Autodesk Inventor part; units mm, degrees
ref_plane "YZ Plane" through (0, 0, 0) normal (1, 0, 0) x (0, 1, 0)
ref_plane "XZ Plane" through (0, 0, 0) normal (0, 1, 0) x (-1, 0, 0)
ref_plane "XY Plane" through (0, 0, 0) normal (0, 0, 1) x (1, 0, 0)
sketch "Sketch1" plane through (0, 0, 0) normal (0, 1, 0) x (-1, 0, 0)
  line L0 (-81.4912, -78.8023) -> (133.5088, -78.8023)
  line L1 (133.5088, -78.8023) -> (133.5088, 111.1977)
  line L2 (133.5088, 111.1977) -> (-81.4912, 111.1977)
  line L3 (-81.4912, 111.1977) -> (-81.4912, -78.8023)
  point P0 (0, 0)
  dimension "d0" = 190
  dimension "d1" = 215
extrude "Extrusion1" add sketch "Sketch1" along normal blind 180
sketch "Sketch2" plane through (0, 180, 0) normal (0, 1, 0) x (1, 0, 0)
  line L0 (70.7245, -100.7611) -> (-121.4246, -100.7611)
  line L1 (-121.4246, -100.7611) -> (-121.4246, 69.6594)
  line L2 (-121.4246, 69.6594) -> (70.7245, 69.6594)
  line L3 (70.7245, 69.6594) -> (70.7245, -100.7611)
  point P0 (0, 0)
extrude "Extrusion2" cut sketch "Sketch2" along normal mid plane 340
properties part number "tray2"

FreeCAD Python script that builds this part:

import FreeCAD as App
import Part
import Sketcher

V = App.Vector
Q = App.Units.Quantity

doc = App.newDocument("Part")
body = doc.addObject("PartDesign::Body", "Body")

# Sketch on XZ plane
sketch1 = body.newObject("Sketcher::SketchObject", "Sketch")
sketch1.AttachmentSupport = (doc.getObject("XZ_Plane"), [""])
sketch1.MapMode = "FlatFace"
sketch1.addGeometry([
    Part.LineSegment(V(81, 111, 0), V(81, -79, 0)),
    Part.LineSegment(V(81, -79, 0), V(-134, -79, 0)),
    Part.LineSegment(V(-134, -79, 0), V(-134, 111, 0)),
    Part.LineSegment(V(-134, 111, 0), V(81, 111, 0)),
], False)
sketch1.addConstraint([
    Sketcher.Constraint("Coincident", 0, 2, 1, 1),
    Sketcher.Constraint("Coincident", 1, 2, 2, 1),
    Sketcher.Constraint("Coincident", 2, 2, 3, 1),
    Sketcher.Constraint("Coincident", 3, 2, 0, 1),
    Sketcher.Constraint("Vertical", 0),
    Sketcher.Constraint("Horizontal", 1),
    Sketcher.Constraint("Vertical", 2),
    Sketcher.Constraint("Horizontal", 3),
    Sketcher.Constraint("DistanceX", 1, 2, 1, 1, Q("215 mm")),
    Sketcher.Constraint("DistanceY", 0, 2, 0, 1, Q("190 mm")),
    Sketcher.Constraint("DistanceX", -1, 1, 0, 2, Q("81.4912 mm")),
    Sketcher.Constraint("DistanceY", 0, 2, -1, 1, Q("78.8023 mm")),
])
pad1 = body.newObject("PartDesign::Pad", "Pad")
pad1.Profile = sketch1
pad1.Length = 180
pad1.Reversed = True

# Sketch on XZ plane
sketch2 = body.newObject("Sketcher::SketchObject", "Sketch001")
sketch2.AttachmentSupport = (doc.getObject("XZ_Plane"), [""])
sketch2.MapMode = "FlatFace"
sketch2.AttachmentOffset = App.Placement(V(0, 0, -180), App.Rotation())
sketch2.addGeometry([
    Part.LineSegment(V(-121, 101, 0), V(71, 101, 0)),
    Part.LineSegment(V(71, 101, 0), V(71, -70, 0)),
    Part.LineSegment(V(71, -70, 0), V(-121, -70, 0)),
    Part.LineSegment(V(-121, -70, 0), V(-121, 101, 0)),
], False)
sketch2.addConstraint([
    Sketcher.Constraint("Coincident", 0, 2, 1, 1),
    Sketcher.Constraint("Coincident", 1, 2, 2, 1),
    Sketcher.Constraint("Coincident", 2, 2, 3, 1),
    Sketcher.Constraint("Coincident", 3, 2, 0, 1),
    Sketcher.Constraint("Horizontal", 0),
    Sketcher.Constraint("Vertical", 1),
    Sketcher.Constraint("Horizontal", 2),
    Sketcher.Constraint("Vertical", 3),
    Sketcher.Constraint("DistanceX", 0, 1, 0, 2, Q("192.149 mm")),
    Sketcher.Constraint("DistanceY", 1, 2, 1, 1, Q("170.4205 mm")),
    Sketcher.Constraint("DistanceY", -1, 1, 0, 2, Q("100.761 mm")),
    Sketcher.Constraint("DistanceX", -1, 1, 0, 2, Q("70.7245 mm")),
])
pocket1 = body.newObject("PartDesign::Pocket", "Pocket")
pocket1.Profile = sketch2
pocket1.Length = 340
pocket1.Midplane = True

doc.recompute()
